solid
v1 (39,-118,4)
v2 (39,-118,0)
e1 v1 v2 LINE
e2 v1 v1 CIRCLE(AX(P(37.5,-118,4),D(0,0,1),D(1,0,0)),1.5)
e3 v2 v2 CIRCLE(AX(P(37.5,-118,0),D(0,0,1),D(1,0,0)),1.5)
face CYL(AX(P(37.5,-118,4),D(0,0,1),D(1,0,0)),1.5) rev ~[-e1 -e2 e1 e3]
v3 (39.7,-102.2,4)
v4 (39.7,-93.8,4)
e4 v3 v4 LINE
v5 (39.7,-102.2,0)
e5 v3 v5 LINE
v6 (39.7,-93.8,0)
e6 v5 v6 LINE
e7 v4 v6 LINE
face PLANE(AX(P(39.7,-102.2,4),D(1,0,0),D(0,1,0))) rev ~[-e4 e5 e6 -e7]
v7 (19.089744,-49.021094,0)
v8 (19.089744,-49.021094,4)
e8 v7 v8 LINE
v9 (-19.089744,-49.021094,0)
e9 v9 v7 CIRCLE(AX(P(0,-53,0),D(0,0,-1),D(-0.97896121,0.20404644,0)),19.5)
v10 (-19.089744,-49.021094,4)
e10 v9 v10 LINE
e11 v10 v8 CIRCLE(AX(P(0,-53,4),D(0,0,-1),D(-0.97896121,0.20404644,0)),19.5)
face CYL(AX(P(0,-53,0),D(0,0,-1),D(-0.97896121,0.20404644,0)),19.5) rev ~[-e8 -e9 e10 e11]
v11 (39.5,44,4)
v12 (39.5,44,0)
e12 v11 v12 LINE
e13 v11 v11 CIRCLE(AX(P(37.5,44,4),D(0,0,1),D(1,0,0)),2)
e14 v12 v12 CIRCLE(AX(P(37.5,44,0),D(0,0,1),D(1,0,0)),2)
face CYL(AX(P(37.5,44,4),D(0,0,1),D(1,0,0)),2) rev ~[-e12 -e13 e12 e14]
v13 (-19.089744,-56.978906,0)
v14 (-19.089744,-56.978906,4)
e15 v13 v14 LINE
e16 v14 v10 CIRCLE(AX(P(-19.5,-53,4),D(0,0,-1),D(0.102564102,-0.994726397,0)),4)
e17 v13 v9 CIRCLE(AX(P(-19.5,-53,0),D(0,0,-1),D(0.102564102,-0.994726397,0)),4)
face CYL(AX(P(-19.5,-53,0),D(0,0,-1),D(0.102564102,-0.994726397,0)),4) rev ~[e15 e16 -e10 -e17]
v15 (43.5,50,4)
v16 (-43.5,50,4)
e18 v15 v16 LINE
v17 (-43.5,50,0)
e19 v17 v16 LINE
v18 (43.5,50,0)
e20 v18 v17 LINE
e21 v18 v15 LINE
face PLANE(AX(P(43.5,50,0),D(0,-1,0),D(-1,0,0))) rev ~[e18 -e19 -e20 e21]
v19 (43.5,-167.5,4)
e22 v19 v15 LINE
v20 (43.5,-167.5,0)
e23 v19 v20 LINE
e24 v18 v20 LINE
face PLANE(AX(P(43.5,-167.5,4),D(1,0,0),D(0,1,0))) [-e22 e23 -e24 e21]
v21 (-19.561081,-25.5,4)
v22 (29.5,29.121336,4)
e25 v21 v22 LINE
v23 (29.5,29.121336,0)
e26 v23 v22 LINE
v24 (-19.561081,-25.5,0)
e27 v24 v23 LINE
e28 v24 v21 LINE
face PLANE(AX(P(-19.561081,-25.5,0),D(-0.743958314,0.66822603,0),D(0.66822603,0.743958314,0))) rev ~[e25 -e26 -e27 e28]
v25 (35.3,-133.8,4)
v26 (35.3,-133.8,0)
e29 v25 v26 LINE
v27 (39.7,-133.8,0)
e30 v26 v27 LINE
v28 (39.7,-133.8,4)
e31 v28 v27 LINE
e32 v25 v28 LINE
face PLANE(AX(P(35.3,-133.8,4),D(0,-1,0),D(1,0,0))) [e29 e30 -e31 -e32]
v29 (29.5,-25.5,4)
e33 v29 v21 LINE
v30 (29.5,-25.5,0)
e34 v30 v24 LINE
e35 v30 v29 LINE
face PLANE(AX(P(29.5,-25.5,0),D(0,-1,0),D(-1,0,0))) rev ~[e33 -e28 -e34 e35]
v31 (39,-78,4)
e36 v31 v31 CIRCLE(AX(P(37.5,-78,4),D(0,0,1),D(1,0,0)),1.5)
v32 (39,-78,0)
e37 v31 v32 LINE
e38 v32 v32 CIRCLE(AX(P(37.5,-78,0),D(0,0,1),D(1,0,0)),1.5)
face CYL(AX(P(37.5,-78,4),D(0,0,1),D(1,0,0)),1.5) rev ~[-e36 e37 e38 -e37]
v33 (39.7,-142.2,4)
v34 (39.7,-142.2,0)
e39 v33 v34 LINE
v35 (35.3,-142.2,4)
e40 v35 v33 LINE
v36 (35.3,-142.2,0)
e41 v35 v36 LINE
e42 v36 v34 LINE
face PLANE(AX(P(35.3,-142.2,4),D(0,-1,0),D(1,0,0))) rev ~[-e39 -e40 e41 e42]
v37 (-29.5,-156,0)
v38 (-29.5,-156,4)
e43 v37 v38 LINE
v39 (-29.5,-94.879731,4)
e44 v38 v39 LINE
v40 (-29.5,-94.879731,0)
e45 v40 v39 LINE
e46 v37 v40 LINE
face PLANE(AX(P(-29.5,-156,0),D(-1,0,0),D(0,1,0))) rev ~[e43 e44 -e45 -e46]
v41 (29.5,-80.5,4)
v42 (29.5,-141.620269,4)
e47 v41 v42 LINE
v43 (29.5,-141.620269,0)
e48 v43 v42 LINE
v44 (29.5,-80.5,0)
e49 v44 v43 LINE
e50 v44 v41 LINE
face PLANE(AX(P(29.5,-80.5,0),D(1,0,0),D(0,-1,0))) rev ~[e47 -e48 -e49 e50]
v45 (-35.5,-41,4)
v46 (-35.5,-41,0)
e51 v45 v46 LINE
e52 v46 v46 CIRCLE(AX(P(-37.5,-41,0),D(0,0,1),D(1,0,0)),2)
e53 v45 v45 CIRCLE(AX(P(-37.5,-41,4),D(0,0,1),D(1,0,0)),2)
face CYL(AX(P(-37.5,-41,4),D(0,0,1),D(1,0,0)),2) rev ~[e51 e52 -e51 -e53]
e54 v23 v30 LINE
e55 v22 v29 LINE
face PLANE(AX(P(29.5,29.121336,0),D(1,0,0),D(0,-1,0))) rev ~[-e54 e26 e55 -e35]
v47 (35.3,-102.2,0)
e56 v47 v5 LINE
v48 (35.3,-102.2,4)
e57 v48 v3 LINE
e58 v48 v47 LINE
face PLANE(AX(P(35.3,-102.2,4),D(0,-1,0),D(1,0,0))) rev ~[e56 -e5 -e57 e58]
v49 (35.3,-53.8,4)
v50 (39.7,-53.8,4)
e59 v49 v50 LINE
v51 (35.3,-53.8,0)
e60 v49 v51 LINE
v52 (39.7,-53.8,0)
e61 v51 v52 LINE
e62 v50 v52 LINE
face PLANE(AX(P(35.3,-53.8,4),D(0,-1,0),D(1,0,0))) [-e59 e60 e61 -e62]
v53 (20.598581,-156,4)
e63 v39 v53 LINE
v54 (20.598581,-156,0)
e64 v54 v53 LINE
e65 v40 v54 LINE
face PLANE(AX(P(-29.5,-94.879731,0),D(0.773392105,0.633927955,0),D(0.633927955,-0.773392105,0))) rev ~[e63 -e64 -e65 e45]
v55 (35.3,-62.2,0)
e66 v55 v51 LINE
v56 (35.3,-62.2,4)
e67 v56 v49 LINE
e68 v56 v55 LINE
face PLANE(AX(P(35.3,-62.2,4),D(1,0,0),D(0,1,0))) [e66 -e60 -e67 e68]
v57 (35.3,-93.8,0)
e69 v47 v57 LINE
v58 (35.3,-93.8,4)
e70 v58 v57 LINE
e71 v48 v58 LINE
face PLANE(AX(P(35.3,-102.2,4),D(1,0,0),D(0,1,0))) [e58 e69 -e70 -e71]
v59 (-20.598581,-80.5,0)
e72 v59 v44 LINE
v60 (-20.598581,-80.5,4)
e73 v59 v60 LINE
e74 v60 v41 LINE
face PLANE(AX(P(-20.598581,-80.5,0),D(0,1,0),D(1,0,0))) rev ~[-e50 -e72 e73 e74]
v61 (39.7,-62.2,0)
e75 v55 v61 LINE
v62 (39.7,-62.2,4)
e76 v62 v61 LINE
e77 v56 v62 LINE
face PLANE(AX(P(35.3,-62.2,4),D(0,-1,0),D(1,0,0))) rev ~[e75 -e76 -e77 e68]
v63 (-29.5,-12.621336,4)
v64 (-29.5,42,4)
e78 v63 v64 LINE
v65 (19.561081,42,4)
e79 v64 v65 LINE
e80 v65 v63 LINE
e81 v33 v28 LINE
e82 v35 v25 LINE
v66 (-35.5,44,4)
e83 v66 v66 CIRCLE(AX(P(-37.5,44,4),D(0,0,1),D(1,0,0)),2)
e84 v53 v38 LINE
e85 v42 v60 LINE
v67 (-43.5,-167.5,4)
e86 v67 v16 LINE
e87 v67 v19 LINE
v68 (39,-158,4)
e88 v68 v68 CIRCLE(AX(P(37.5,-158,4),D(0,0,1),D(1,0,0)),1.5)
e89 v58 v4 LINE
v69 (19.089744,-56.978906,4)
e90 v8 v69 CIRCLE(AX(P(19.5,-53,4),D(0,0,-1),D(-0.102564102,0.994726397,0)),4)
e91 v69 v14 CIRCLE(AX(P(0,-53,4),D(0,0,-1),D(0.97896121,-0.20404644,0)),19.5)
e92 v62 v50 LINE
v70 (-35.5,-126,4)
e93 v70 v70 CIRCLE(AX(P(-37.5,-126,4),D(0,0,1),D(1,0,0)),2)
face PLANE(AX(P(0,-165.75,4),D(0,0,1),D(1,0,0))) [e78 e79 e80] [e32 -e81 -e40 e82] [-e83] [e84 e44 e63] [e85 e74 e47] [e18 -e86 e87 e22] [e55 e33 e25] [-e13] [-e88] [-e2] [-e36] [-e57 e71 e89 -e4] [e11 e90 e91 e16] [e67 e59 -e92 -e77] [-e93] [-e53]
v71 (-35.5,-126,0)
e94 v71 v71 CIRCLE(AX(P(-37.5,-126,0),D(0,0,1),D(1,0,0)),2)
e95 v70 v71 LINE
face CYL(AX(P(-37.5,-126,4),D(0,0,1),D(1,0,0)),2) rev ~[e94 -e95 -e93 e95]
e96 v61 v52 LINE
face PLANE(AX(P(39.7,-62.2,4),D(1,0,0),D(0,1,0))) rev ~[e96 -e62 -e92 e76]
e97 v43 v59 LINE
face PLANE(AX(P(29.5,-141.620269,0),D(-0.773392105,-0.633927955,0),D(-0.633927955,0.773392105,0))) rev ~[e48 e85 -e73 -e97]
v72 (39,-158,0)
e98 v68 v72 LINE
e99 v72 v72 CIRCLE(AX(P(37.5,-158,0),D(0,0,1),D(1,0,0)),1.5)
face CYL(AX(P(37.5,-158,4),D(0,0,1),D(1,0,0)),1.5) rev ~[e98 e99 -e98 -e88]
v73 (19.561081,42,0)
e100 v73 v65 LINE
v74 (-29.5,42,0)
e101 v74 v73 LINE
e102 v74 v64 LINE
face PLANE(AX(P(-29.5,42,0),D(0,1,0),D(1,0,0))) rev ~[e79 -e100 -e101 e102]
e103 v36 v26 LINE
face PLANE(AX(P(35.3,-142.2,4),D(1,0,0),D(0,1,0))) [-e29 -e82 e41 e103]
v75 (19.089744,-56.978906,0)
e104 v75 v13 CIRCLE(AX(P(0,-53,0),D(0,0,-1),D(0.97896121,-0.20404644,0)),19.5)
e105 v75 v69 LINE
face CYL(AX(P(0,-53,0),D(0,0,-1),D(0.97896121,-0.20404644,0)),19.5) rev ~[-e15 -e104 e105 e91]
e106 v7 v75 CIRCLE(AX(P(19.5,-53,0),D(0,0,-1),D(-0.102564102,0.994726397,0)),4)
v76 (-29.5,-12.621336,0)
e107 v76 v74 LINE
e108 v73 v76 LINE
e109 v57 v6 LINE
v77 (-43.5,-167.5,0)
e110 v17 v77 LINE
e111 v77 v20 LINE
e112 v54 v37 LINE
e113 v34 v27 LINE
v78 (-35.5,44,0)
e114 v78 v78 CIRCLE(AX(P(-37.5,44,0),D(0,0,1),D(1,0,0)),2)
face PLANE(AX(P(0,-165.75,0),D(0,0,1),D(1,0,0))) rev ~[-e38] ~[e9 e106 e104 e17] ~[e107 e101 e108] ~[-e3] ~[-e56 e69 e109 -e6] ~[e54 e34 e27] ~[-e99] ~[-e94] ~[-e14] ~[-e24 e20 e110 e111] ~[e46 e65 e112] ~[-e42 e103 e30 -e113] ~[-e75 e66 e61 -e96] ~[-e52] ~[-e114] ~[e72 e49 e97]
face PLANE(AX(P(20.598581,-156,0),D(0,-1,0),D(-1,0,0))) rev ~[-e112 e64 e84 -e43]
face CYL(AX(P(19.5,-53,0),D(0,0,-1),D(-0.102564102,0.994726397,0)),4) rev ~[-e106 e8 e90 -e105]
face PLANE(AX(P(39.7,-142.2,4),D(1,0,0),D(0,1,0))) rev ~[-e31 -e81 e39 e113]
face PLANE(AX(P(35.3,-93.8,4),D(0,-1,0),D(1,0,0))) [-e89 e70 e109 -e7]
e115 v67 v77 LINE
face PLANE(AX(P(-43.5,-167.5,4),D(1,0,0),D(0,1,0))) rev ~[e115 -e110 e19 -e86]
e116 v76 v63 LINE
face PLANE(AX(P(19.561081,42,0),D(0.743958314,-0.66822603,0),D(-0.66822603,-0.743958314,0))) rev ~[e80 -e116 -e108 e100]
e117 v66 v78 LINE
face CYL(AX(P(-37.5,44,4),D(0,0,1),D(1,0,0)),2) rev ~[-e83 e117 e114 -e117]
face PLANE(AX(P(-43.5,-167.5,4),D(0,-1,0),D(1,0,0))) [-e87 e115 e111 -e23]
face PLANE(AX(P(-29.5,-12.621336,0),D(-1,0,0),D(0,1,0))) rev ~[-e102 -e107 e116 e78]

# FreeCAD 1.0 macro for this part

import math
import FreeCAD as App
import Part
import Sketcher
from FreeCAD import Vector

doc = App.newDocument("Part")
body = doc.addObject("PartDesign::Body", "Body")

# Sketch on XY plane
sketch1 = body.newObject("Sketcher::SketchObject", "Sketch")
sketch1.AttachmentSupport = (doc.getObject("XY_Plane"), [""])
sketch1.MapMode = "FlatFace"
sketch1.addGeometry([
    Part.LineSegment(Vector(-43.5, 50, 0), Vector(-43.5, -164, 0)),  # 0
    Part.LineSegment(Vector(-43.5, -164, 0), Vector(43.5, -164, 0)),  # 1
    Part.LineSegment(Vector(43.5, -164, 0), Vector(43.5, 50, 0)),  # 2
    Part.LineSegment(Vector(43.5, 50, 0), Vector(-43.5, 50, 0)),  # 3
    Part.LineSegment(Vector(20.598581, -156, 0), Vector(-29.5, -156, 0)),  # 4
    Part.LineSegment(Vector(-29.5, -156, 0), Vector(-29.5, -94.879731, 0)),  # 5
    Part.LineSegment(Vector(-29.5, -94.879731, 0), Vector(20.598581, -156, 0)),  # 6
    Part.LineSegment(Vector(29.5, -141.620269, 0), Vector(-20.598581, -80.5, 0)),  # 7
    Part.LineSegment(Vector(-20.598581, -80.5, 0), Vector(29.5, -80.5, 0)),  # 8
    Part.LineSegment(Vector(29.5, -80.5, 0), Vector(29.5, -141.620269, 0)),  # 9
    Part.LineSegment(Vector(-29.5, -12.621336, 0), Vector(-29.5, 42, 0)),  # 10
    Part.LineSegment(Vector(-29.5, 42, 0), Vector(19.561081, 42, 0)),  # 11
    Part.LineSegment(Vector(19.561081, 42, 0), Vector(-29.5, -12.621336, 0)),  # 12
    Part.ArcOfCircle(Part.Circle(Vector(-19.5, -53, 0), Vector(0, 0, 1), 4), math.radians(84.113158), math.radians(275.886842)),  # 13
    Part.ArcOfCircle(Part.Circle(Vector(0, -53, 0), Vector(0, 0, 1), 19.5), math.radians(11.773684), math.radians(168.226316)),  # 14
    Part.ArcOfCircle(Part.Circle(Vector(19.5, -53, 0), Vector(0, 0, 1), 4), math.radians(-95.886842), math.radians(95.886842)),  # 15
    Part.ArcOfCircle(Part.Circle(Vector(0, -53, 0), Vector(0, 0, 1), 19.5), math.radians(-168.226316), math.radians(-11.773684)),  # 16
    Part.LineSegment(Vector(29.5, -25.5, 0), Vector(-19.561081, -25.5, 0)),  # 17
    Part.LineSegment(Vector(-19.561081, -25.5, 0), Vector(29.5, 29.121336, 0)),  # 18
    Part.LineSegment(Vector(29.5, 29.121336, 0), Vector(29.5, -25.5, 0)),  # 19
], False)
sketch1.addConstraint([
    Sketcher.Constraint("Coincident", 0, 2, 1, 1),
    Sketcher.Constraint("Coincident", 1, 2, 2, 1),
    Sketcher.Constraint("Coincident", 2, 2, 3, 1),
    Sketcher.Constraint("Coincident", 3, 2, 0, 1),
    Sketcher.Constraint("Coincident", 4, 2, 5, 1),
    Sketcher.Constraint("Coincident", 5, 2, 6, 1),
    Sketcher.Constraint("Coincident", 6, 2, 4, 1),
    Sketcher.Constraint("Coincident", 7, 2, 8, 1),
    Sketcher.Constraint("Coincident", 8, 2, 9, 1),
    Sketcher.Constraint("Coincident", 9, 2, 7, 1),
    Sketcher.Constraint("Coincident", 10, 2, 11, 1),
    Sketcher.Constraint("Coincident", 11, 2, 12, 1),
    Sketcher.Constraint("Coincident", 12, 2, 10, 1),
    Sketcher.Constraint("Coincident", 13, 1, 14, 2),
    Sketcher.Constraint("Coincident", 14, 1, 15, 2),
    Sketcher.Constraint("Coincident", 15, 1, 16, 2),
    Sketcher.Constraint("Coincident", 16, 1, 13, 2),
    Sketcher.Constraint("Coincident", 17, 2, 18, 1),
    Sketcher.Constraint("Coincident", 18, 2, 19, 1),
    Sketcher.Constraint("Coincident", 19, 2, 17, 1),
    Sketcher.Constraint("Vertical", 0),
    Sketcher.Constraint("Horizontal", 1),
    Sketcher.Constraint("Vertical", 2),
    Sketcher.Constraint("Horizontal", 3),
    Sketcher.Constraint("Horizontal", 4),
    Sketcher.Constraint("Vertical", 5),
    Sketcher.Constraint("Horizontal", 8),
    Sketcher.Constraint("Vertical", 9),
    Sketcher.Constraint("Vertical", 10),
    Sketcher.Constraint("Horizontal", 11),
    Sketcher.Constraint("Horizontal", 17),
    Sketcher.Constraint("Vertical", 19),
    Sketcher.Constraint("Coincident", 16, 3, 14, 3),
    Sketcher.Constraint("Equal", 13, 15),
    Sketcher.Constraint("Equal", 14, 16),
    Sketcher.Constraint("Symmetric", 13, 3, 15, 3, -2),
    Sketcher.Constraint("PointOnObject", 14, 3, -2),
    Sketcher.Constraint("Parallel", 6, 7),
    Sketcher.Constraint("Parallel", 12, 18),
    Sketcher.Constraint("Horizontal", 13, 3, 14, 3),
    Sketcher.Constraint("Vertical", 5, 2, 10, 2),
    Sketcher.Constraint("Vertical", 9, 2, 18, 2),
    Sketcher.Constraint("Equal", 4, 8),
    Sketcher.Constraint("Equal", 11, 17),
    Sketcher.Constraint("Radius", 13, 4.0),
    Sketcher.Constraint("Radius", 14, 19.5),
    Sketcher.Constraint("DistanceX", 1, 1, 1, 2, 87.0),
    Sketcher.Constraint("DistanceY", 0, 2, 0, 1, 214.0),
    Sketcher.Constraint("DistanceY", 13, 3, -1, 1, 53.0),
    Sketcher.Constraint("DistanceY", 0, 2, -1, 1, 164.0),
    Sketcher.Constraint("DistanceY", 4, 2, -1, 1, 156.0),
    Sketcher.Constraint("DistanceY", -1, 1, 10, 2, 42.0),
    Sketcher.Constraint("DistanceX", 13, 3, 15, 3, 39.0),
    Sketcher.Constraint("DistanceX", 0, 2, 13, 3, 24.0),
    Sketcher.Constraint("DistanceX", 0, 2, 4, 2, 14.0),
    Sketcher.Constraint("DistanceX", 15, 3, 8, 2, 10.0),
    Sketcher.Constraint("DistanceY", 7, 2, -1, 1, 80.5),
    Sketcher.Constraint("DistanceY", 17, 2, -1, 1, 25.5),
    Sketcher.Constraint("DistanceX", 4, 2, 4, 1, 50.098581),
    Sketcher.Constraint("DistanceX", 11, 1, 11, 2, 49.061081),
    Sketcher.Constraint("DistanceY", 5, 1, 5, 2, 61.120269),
    Sketcher.Constraint("Distance", 12, 73.419888),
])
pad1 = body.newObject("PartDesign::Pad", "Pad")
pad1.Profile = sketch1
pad1.Length = 4

# Sketch on XY plane
sketch2 = body.newObject("Sketcher::SketchObject", "Sketch001")
sketch2.AttachmentSupport = (doc.getObject("XY_Plane"), [""])
sketch2.MapMode = "FlatFace"
sketch2.AttachmentOffset = App.Placement(Vector(0, 0, 4), App.Rotation())
sketch2.addGeometry([
    Part.Circle(Vector(37.5, -158, 0), Vector(0, 0, 1), 1.5),  # 0
    Part.Circle(Vector(37.5, -78, 0), Vector(0, 0, 1), 1.5),  # 1
    Part.Circle(Vector(37.5, -118, 0), Vector(0, 0, 1), 1.5),  # 2
    Part.Circle(Vector(37.5, 44, 0), Vector(0, 0, 1), 2),  # 3
    Part.Circle(Vector(-37.5, 44, 0), Vector(0, 0, 1), 2),  # 4
    Part.Circle(Vector(-37.5, -41, 0), Vector(0, 0, 1), 2),  # 5
    Part.Circle(Vector(-37.5, -126, 0), Vector(0, 0, 1), 2),  # 6
    Part.LineSegment(Vector(35.3, -133.8, 0), Vector(35.3, -142.2, 0)),  # 7
    Part.LineSegment(Vector(35.3, -142.2, 0), Vector(39.7, -142.2, 0)),  # 8
    Part.LineSegment(Vector(39.7, -142.2, 0), Vector(39.7, -133.8, 0)),  # 9
    Part.LineSegment(Vector(39.7, -133.8, 0), Vector(35.3, -133.8, 0)),  # 10
    Part.LineSegment(Vector(35.3, -93.8, 0), Vector(35.3, -102.2, 0)),  # 11
    Part.LineSegment(Vector(35.3, -102.2, 0), Vector(39.7, -102.2, 0)),  # 12
    Part.LineSegment(Vector(39.7, -102.2, 0), Vector(39.7, -93.8, 0)),  # 13
    Part.LineSegment(Vector(39.7, -93.8, 0), Vector(35.3, -93.8, 0)),  # 14
    Part.LineSegment(Vector(35.3, -53.8, 0), Vector(35.3, -62.2, 0)),  # 15
    Part.LineSegment(Vector(35.3, -62.2, 0), Vector(39.7, -62.2, 0)),  # 16
    Part.LineSegment(Vector(39.7, -62.2, 0), Vector(39.7, -53.8, 0)),  # 17
    Part.LineSegment(Vector(39.7, -53.8, 0), Vector(35.3, -53.8, 0)),  # 18
], False)
sketch2.addConstraint([
    Sketcher.Constraint("Coincident", 7, 2, 8, 1),
    Sketcher.Constraint("Coincident", 8, 2, 9, 1),
    Sketcher.Constraint("Coincident", 9, 2, 10, 1),
    Sketcher.Constraint("Coincident", 10, 2, 7, 1),
    Sketcher.Constraint("Coincident", 11, 2, 12, 1),
    Sketcher.Constraint("Coincident", 12, 2, 13, 1),
    Sketcher.Constraint("Coincident", 13, 2, 14, 1),
    Sketcher.Constraint("Coincident", 14, 2, 11, 1),
    Sketcher.Constraint("Coincident", 15, 2, 16, 1),
    Sketcher.Constraint("Coincident", 16, 2, 17, 1),
    Sketcher.Constraint("Coincident", 17, 2, 18, 1),
    Sketcher.Constraint("Coincident", 18, 2, 15, 1),
    Sketcher.Constraint("Vertical", 7),
    Sketcher.Constraint("Horizontal", 8),
    Sketcher.Constraint("Vertical", 9),
    Sketcher.Constraint("Horizontal", 10),
    Sketcher.Constraint("Vertical", 11),
    Sketcher.Constraint("Horizontal", 12),
    Sketcher.Constraint("Vertical", 13),
    Sketcher.Constraint("Horizontal", 14),
    Sketcher.Constraint("Vertical", 15),
    Sketcher.Constraint("Horizontal", 16),
    Sketcher.Constraint("Vertical", 17),
    Sketcher.Constraint("Horizontal", 18),
    Sketcher.Constraint("Equal", 0, 1),
    Sketcher.Constraint("Equal", 1, 2),
    Sketcher.Constraint("Equal", 3, 4),
    Sketcher.Constraint("Equal", 4, 5),
    Sketcher.Constraint("Equal", 5, 6),
    Sketcher.Constraint("Symmetric", 3, 3, 4, 3, -2),
    Sketcher.Constraint("Vertical", 0, 3, 1, 3),
    Sketcher.Constraint("Vertical", 1, 3, 2, 3),
    Sketcher.Constraint("Vertical", 2, 3, 3, 3),
    Sketcher.Constraint("Vertical", 4, 3, 5, 3),
    Sketcher.Constraint("Vertical", 5, 3, 6, 3),
    Sketcher.Constraint("Vertical", 10, 2, 11, 2),
    Sketcher.Constraint("Vertical", 9, 2, 12, 2),
    Sketcher.Constraint("Vertical", 14, 2, 15, 2),
    Sketcher.Constraint("Vertical", 13, 2, 16, 2),
    Sketcher.Constraint("Equal", 9, 11),
    Sketcher.Constraint("Equal", 13, 15),
    Sketcher.Constraint("Diameter", 0, 3.0),
    Sketcher.Constraint("Diameter", 3, 4.0),
    Sketcher.Constraint("DistanceX", 8, 1, 8, 2, 4.4),
    Sketcher.Constraint("DistanceY", 7, 2, 7, 1, 8.4),
    Sketcher.Constraint("DistanceY", 0, 3, -1, 1, 158.0),
    Sketcher.Constraint("DistanceY", 1, 3, -1, 1, 78.0),
    Sketcher.Constraint("DistanceY", 2, 3, -1, 1, 118.0),
    Sketcher.Constraint("DistanceY", -1, 1, 3, 3, 44.0),
    Sketcher.Constraint("DistanceY", 5, 3, -1, 1, 41.0),
    Sketcher.Constraint("DistanceY", 6, 3, -1, 1, 126.0),
    Sketcher.Constraint("DistanceX", 4, 3, 3, 3, 75.0),
    Sketcher.Constraint("DistanceY", 7, 2, 11, 2, 40.0),
    Sketcher.Constraint("DistanceY", 11, 2, 15, 2, 40.0),
    Sketcher.Constraint("DistanceX", -1, 1, 7, 2, 35.3),
    Sketcher.Constraint("DistanceY", 7, 2, -1, 1, 142.2),
])
pocket1 = body.newObject("PartDesign::Pocket", "Pocket")
pocket1.Profile = sketch2
pocket1.Length = 4

# Sketch on XY plane
sketch3 = body.newObject("Sketcher::SketchObject", "Sketch002")
sketch3.AttachmentSupport = (doc.getObject("XY_Plane"), [""])
sketch3.MapMode = "FlatFace"
sketch3.AttachmentOffset = App.Placement(Vector(0, 0, 4), App.Rotation())
sketch3.addGeometry([
    Part.LineSegment(Vector(-43.5, -164, 0), Vector(-43.5, -167.5, 0)),
    Part.LineSegment(Vector(-43.5, -167.5, 0), Vector(43.5, -167.5, 0)),
    Part.LineSegment(Vector(43.5, -167.5, 0), Vector(43.5, -164, 0)),
    Part.LineSegment(Vector(43.5, -164, 0), Vector(-43.5, -164, 0)),
], False)
sketch3.addConstraint([
    Sketcher.Constraint("Coincident", 0, 2, 1, 1),
    Sketcher.Constraint("Coincident", 1, 2, 2, 1),
    Sketcher.Constraint("Coincident", 2, 2, 3, 1),
    Sketcher.Constraint("Coincident", 3, 2, 0, 1),
    Sketcher.Constraint("Vertical", 0),
    Sketcher.Constraint("Horizontal", 1),
    Sketcher.Constraint("Vertical", 2),
    Sketcher.Constraint("Horizontal", 3),
    Sketcher.Constraint("DistanceX", 1, 1, 1, 2, 87.0),
    Sketcher.Constraint("DistanceY", 0, 2, 0, 1, 3.5),
    Sketcher.Constraint("DistanceY", 2, 2, -1, 1, 164.0),
    Sketcher.Constraint("DistanceX", 0, 2, -1, 1, 43.5),
])
pad2 = body.newObject("PartDesign::Pad", "Pad001")
pad2.Profile = sketch3
pad2.Length = 4
pad2.Reversed = True

doc.recompute()
